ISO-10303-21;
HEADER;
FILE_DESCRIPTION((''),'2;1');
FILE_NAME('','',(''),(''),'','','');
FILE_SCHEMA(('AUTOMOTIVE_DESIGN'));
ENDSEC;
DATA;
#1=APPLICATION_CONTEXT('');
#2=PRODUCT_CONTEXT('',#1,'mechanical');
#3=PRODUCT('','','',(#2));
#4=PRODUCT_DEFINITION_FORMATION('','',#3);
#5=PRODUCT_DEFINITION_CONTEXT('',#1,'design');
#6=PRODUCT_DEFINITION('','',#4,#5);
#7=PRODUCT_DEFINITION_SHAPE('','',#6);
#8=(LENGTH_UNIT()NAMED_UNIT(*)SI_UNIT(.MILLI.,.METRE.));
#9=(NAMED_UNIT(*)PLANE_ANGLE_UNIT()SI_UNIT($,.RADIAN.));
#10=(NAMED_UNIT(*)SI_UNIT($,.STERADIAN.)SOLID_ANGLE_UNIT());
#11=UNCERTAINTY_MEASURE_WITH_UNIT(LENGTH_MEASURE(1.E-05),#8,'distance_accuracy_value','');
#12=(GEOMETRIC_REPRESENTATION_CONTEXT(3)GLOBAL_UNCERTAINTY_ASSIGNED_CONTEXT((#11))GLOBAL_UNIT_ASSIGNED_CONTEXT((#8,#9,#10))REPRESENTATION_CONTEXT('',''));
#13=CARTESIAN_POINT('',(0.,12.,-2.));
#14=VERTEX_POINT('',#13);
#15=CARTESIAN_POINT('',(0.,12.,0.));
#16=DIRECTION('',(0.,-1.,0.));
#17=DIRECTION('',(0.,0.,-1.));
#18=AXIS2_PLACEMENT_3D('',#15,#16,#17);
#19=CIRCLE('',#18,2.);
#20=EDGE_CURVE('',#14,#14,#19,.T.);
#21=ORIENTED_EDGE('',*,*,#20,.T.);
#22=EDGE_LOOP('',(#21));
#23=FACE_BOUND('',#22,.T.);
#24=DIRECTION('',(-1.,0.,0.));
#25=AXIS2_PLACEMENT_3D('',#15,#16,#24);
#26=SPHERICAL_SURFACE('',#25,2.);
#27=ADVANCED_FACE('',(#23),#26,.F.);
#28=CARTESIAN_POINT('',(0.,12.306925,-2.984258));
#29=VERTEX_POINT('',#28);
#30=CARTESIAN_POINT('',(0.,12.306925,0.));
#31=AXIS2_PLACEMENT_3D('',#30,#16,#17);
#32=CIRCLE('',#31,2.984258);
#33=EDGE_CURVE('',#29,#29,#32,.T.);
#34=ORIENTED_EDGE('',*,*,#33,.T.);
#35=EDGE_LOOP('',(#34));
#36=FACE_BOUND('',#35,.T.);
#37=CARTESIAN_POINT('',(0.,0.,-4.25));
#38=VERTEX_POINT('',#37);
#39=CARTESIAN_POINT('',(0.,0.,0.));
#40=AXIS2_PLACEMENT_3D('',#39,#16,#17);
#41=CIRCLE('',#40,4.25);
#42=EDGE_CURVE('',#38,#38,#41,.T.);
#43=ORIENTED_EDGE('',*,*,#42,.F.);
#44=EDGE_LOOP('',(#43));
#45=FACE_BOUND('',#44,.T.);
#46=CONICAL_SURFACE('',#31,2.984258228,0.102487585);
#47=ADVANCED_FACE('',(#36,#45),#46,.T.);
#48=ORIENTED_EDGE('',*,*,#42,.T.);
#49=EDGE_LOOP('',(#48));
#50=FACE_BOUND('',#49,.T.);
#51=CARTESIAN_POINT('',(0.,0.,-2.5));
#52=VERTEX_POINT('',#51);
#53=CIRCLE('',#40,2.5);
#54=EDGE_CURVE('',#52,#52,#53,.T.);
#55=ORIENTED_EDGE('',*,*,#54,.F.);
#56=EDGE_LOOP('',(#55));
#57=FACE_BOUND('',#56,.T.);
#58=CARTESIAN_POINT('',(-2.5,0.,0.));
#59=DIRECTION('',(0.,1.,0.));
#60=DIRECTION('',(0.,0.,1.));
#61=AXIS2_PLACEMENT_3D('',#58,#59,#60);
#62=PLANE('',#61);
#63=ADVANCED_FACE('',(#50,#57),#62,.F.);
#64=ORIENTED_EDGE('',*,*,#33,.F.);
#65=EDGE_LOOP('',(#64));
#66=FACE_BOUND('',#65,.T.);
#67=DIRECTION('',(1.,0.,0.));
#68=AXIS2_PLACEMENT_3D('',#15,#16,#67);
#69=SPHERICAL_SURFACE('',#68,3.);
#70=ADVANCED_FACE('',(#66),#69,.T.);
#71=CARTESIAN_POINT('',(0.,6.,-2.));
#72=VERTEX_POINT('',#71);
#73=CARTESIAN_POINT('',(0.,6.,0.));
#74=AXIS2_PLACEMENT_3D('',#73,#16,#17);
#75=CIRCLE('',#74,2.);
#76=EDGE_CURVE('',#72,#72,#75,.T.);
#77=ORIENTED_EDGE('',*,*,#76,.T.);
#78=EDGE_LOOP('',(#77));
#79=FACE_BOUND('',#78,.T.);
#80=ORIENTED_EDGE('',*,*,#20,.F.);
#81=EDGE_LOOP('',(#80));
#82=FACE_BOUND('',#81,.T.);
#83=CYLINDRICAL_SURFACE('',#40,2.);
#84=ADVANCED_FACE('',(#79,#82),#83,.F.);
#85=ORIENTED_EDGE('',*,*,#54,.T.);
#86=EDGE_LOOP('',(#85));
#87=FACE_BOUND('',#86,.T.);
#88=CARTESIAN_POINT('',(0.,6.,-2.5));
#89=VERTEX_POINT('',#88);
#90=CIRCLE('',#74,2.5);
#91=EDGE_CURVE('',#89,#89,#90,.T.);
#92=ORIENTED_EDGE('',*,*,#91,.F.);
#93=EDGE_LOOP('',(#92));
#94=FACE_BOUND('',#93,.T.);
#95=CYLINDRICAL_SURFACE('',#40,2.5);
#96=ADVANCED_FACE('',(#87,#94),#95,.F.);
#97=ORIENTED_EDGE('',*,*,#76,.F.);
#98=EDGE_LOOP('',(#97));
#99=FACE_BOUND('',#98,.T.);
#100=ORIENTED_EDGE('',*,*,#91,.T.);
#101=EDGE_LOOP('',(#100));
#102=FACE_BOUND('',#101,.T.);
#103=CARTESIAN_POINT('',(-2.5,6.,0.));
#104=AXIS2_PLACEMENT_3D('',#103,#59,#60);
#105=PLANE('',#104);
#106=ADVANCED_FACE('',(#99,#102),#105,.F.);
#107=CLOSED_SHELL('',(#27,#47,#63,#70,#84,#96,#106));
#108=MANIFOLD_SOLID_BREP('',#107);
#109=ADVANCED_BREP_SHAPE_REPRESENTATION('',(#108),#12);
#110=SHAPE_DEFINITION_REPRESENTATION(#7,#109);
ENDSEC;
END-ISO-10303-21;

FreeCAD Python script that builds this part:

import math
import FreeCAD as App
import Part
import Sketcher
from FreeCAD import Vector

doc = App.newDocument("Part")
body = doc.addObject("PartDesign::Body", "Body")

# Sketch on XY plane
sketch1 = body.newObject("Sketcher::SketchObject", "Sketch")
sketch1.AttachmentSupport = (doc.getObject("XY_Plane"), [""])
sketch1.MapMode = "FlatFace"
sketch1.addGeometry([
    Part.LineSegment(Vector(-4.2, 0, 0), Vector(-2.5, 0, 0)),  # 0
    Part.LineSegment(Vector(-2.5, 0, 0), Vector(-2.5, 6, 0)),  # 1
    Part.LineSegment(Vector(-2.5, 6, 0), Vector(-2, 6, 0)),  # 2
    Part.LineSegment(Vector(-2, 6, 0), Vector(-2, 12, 0)),  # 3
    Part.ArcOfCircle(Part.Circle(Vector(0, 12, 0), Vector(0, 0, 1), 2), math.radians(90), math.radians(180)),  # 4
    Part.LineSegment(Vector(0, 14, 0), Vector(0, 15, 0)),  # 5
    Part.ArcOfCircle(Part.Circle(Vector(0, 12, 0), Vector(0, 0, 1), 3), math.radians(90), math.radians(174)),  # 6
    Part.LineSegment(Vector(-3, 12.3, 0), Vector(-4.2, 0, 0)),  # 7
], False)
sketch1.addConstraint([
    Sketcher.Constraint("Coincident", 0, 2, 1, 1),
    Sketcher.Constraint("Coincident", 1, 2, 2, 1),
    Sketcher.Constraint("Coincident", 2, 2, 3, 1),
    Sketcher.Constraint("Tangent", 3, 2, 4, 2),
    Sketcher.Constraint("Coincident", 4, 1, 5, 1),
    Sketcher.Constraint("Coincident", 5, 2, 6, 1),
    Sketcher.Constraint("Tangent", 6, 2, 7, 1),
    Sketcher.Constraint("Coincident", 7, 2, 0, 1),
    Sketcher.Constraint("Horizontal", 0),
    Sketcher.Constraint("Vertical", 1),
    Sketcher.Constraint("Horizontal", 2),
    Sketcher.Constraint("Vertical", 3),
    Sketcher.Constraint("Vertical", 5),
    Sketcher.Constraint("Coincident", 6, 3, 4, 3),
    Sketcher.Constraint("PointOnObject", 4, 3, -2),
    Sketcher.Constraint("PointOnObject", 0, 2, -1),
    Sketcher.Constraint("PointOnObject", 4, 1, -2),
    Sketcher.Constraint("Equal", 1, 3),
    Sketcher.Constraint("Radius", 4, 2.0),
    Sketcher.Constraint("Radius", 6, 3.0),
    Sketcher.Constraint("DistanceY", 1, 1, 1, 2, 6.0),
    Sketcher.Constraint("DistanceX", 2, 1, 2, 2, 0.5),
    Sketcher.Constraint("DistanceX", 0, 1, 0, 2, 1.75),
])
revolution = body.newObject("PartDesign::Revolution", "Revolution")
revolution.Profile = sketch1
revolution.ReferenceAxis = (sketch1, ["V_Axis"])
revolution.Angle = 360

doc.recompute()
